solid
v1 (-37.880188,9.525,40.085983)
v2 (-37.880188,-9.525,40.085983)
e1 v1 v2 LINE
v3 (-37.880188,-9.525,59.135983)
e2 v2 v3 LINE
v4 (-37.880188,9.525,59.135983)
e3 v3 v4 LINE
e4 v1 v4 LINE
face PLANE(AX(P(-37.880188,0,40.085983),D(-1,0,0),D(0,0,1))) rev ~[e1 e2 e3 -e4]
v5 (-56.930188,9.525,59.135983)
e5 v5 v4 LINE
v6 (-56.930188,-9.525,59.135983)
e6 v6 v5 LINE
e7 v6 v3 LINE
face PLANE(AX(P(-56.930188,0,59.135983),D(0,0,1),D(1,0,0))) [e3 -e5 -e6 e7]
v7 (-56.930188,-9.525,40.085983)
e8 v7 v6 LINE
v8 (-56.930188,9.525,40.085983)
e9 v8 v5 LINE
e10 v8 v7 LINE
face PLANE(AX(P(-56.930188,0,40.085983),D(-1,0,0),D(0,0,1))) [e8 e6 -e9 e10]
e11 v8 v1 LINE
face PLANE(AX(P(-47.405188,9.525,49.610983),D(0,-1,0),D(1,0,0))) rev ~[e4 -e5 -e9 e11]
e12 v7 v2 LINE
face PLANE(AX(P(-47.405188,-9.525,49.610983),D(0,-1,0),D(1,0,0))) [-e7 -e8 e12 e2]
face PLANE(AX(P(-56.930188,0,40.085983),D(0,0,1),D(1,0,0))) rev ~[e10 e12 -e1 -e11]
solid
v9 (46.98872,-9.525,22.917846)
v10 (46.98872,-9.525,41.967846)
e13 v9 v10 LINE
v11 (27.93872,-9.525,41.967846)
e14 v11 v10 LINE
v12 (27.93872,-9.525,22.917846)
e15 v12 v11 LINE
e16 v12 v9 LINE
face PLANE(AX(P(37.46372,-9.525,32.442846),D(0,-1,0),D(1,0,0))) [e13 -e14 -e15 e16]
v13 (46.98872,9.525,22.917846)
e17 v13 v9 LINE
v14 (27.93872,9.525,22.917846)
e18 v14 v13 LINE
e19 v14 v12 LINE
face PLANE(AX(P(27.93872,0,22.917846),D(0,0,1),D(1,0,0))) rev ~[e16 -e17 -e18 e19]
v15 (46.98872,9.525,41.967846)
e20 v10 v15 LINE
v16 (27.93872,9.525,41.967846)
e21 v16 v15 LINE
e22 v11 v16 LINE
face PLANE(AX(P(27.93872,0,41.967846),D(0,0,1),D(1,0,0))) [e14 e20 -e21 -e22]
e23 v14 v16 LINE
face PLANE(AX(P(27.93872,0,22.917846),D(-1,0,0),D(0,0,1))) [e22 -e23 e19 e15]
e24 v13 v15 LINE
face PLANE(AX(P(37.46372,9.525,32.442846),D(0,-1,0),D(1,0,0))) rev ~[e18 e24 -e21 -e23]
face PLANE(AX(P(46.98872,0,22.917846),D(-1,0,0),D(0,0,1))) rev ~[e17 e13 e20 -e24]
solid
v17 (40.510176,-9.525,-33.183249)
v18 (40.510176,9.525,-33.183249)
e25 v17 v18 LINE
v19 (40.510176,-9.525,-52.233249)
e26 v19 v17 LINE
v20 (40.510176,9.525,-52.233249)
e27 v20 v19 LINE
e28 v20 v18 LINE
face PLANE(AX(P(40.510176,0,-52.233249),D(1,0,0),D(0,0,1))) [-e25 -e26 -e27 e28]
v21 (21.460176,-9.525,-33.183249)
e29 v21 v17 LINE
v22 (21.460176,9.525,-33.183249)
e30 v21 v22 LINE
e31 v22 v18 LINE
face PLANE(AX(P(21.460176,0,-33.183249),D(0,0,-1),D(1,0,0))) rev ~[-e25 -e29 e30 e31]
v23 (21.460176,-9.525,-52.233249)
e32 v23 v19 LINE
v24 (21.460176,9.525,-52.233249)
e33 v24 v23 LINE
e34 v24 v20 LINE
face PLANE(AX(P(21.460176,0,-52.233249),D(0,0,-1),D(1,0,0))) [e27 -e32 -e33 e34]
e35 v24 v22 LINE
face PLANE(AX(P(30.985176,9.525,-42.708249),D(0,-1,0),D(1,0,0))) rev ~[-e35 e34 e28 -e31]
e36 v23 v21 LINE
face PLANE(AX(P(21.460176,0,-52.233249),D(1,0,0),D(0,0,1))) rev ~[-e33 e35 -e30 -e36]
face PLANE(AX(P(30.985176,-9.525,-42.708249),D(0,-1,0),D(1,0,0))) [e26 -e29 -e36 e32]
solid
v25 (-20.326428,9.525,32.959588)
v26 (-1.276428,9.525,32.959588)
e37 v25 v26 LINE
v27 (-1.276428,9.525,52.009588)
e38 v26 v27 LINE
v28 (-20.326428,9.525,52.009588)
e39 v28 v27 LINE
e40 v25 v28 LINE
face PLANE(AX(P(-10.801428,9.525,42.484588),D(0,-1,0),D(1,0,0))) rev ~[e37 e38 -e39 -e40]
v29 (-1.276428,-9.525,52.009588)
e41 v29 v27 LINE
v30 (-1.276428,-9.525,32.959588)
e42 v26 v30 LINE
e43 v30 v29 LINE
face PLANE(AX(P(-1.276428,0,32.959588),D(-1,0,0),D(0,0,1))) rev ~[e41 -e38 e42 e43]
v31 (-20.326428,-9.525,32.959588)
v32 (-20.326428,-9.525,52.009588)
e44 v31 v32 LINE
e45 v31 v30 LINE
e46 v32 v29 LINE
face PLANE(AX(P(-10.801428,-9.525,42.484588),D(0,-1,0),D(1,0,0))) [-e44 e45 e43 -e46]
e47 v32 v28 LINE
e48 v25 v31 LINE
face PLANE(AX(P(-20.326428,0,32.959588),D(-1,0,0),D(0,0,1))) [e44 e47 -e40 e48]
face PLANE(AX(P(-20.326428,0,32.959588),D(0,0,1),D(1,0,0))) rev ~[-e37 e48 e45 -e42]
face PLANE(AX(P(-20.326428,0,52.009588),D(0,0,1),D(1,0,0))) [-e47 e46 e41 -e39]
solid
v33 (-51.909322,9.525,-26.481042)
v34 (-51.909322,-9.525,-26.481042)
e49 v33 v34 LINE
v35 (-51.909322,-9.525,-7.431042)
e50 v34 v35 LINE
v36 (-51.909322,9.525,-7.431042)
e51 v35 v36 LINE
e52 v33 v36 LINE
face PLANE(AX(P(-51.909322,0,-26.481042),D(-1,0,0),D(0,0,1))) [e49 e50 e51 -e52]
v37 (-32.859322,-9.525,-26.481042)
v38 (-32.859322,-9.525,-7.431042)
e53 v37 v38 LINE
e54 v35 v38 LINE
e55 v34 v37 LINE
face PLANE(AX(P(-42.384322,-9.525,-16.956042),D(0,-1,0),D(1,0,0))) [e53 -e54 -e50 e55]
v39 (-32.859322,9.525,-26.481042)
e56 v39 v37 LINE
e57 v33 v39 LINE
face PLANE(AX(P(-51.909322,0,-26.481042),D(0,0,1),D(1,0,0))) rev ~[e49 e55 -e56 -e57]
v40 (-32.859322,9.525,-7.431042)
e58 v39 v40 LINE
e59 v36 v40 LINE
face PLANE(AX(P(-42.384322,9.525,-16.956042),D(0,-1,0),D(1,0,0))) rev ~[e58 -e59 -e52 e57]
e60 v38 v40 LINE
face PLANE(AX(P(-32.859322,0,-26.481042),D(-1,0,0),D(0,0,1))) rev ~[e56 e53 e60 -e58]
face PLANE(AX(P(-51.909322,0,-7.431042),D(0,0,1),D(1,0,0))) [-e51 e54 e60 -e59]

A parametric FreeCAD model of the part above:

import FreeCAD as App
import Part
import Sketcher
Q = App.Units.Quantity


def add_polygon(sketch, points):
    """Adds a closed chain of lines whose ends are joined by coincident constraints."""
    first, n = sketch.GeometryCount, len(points)
    for a, b in zip(points, points[1:] + points[:1]):
        sketch.addGeometry(Part.LineSegment(App.Vector(*a, 0), App.Vector(*b, 0)), False)
    for i in range(n):
        sketch.addConstraint(Sketcher.Constraint("Coincident", first + i, 2, first + (i + 1) % n, 1))

doc = App.newDocument("Part")
body = doc.addObject("PartDesign::Body", "Body")
body.AllowCompound = True

# Sketch on XZ plane
sketch1 = body.newObject("Sketcher::SketchObject", "Sketch")
sketch1.AttachmentSupport = (doc.getObject("XZ_Plane"), [""])
sketch1.MapMode = "FlatFace"
add_polygon(sketch1, [(-57, 59), (-57, 40), (-38, 40), (-38, 59)])  # lines 0-3
add_polygon(sketch1, [(-20, 52), (-20, 33), (-1, 33), (-1, 52)])  # lines 4-7
add_polygon(sketch1, [(28, 42), (28, 23), (47, 23), (47, 42)])  # lines 8-11
add_polygon(sketch1, [(-52, -7), (-52, -26), (-33, -26), (-33, -7)])  # lines 12-15
add_polygon(sketch1, [(21, -33), (21, -52), (41, -52), (41, -33)])  # lines 16-19
sketch1.addConstraint([
    Sketcher.Constraint("Vertical", 0),
    Sketcher.Constraint("Horizontal", 1),
    Sketcher.Constraint("Vertical", 2),
    Sketcher.Constraint("Horizontal", 3),
    Sketcher.Constraint("Vertical", 4),
    Sketcher.Constraint("Horizontal", 5),
    Sketcher.Constraint("Vertical", 6),
    Sketcher.Constraint("Horizontal", 7),
    Sketcher.Constraint("Vertical", 8),
    Sketcher.Constraint("Horizontal", 9),
    Sketcher.Constraint("Vertical", 10),
    Sketcher.Constraint("Horizontal", 11),
    Sketcher.Constraint("Vertical", 12),
    Sketcher.Constraint("Horizontal", 13),
    Sketcher.Constraint("Vertical", 14),
    Sketcher.Constraint("Horizontal", 15),
    Sketcher.Constraint("Vertical", 16),
    Sketcher.Constraint("Horizontal", 17),
    Sketcher.Constraint("Vertical", 18),
    Sketcher.Constraint("Horizontal", 19),
    Sketcher.Constraint("Equal", 3, 5),
    Sketcher.Constraint("Equal", 7, 9),
    Sketcher.Constraint("Equal", 11, 13),
    Sketcher.Constraint("Equal", 15, 17),
    Sketcher.Constraint("Equal", 19, 0),
    Sketcher.Constraint("Equal", 2, 4),
    Sketcher.Constraint("Equal", 6, 8),
    Sketcher.Constraint("Equal", 10, 12),
    Sketcher.Constraint("Equal", 14, 16),
    Sketcher.Constraint("DistanceX", 1, 1, 1, 2, Q("0.75 in")),
    Sketcher.Constraint("DistanceX", 12, 2, 16, 2, Q("73.369498 mm")),
    Sketcher.Constraint("DistanceX", 4, 2, -1, 1, Q("20.326428 mm")),
    Sketcher.Constraint("DistanceX", -1, 1, 8, 2, Q("27.93872 mm")),
    Sketcher.Constraint("DistanceY", 12, 2, -1, 1, Q("26.481042 mm")),
    Sketcher.Constraint("DistanceY", 16, 2, -1, 1, Q("52.233249 mm")),
    Sketcher.Constraint("DistanceX", 1, 2, 4, 2, Q("17.55376 mm")),
    Sketcher.Constraint("DistanceY", 8, 2, 5, 2, Q("10.041742 mm")),
    Sketcher.Constraint("DistanceY", 12, 2, 4, 2, Q("59.44063 mm")),
    Sketcher.Constraint("DistanceY", -1, 1, 0, 2, Q("40.085983 mm")),
    Sketcher.Constraint("DistanceX", 12, 2, -1, 1, Q("51.909322 mm")),
])
pad1 = body.newObject("PartDesign::Pad", "Pad")
pad1.Profile = sketch1
pad1.Length = Q("0.75 in")
pad1.Midplane = True

doc.recompute()
